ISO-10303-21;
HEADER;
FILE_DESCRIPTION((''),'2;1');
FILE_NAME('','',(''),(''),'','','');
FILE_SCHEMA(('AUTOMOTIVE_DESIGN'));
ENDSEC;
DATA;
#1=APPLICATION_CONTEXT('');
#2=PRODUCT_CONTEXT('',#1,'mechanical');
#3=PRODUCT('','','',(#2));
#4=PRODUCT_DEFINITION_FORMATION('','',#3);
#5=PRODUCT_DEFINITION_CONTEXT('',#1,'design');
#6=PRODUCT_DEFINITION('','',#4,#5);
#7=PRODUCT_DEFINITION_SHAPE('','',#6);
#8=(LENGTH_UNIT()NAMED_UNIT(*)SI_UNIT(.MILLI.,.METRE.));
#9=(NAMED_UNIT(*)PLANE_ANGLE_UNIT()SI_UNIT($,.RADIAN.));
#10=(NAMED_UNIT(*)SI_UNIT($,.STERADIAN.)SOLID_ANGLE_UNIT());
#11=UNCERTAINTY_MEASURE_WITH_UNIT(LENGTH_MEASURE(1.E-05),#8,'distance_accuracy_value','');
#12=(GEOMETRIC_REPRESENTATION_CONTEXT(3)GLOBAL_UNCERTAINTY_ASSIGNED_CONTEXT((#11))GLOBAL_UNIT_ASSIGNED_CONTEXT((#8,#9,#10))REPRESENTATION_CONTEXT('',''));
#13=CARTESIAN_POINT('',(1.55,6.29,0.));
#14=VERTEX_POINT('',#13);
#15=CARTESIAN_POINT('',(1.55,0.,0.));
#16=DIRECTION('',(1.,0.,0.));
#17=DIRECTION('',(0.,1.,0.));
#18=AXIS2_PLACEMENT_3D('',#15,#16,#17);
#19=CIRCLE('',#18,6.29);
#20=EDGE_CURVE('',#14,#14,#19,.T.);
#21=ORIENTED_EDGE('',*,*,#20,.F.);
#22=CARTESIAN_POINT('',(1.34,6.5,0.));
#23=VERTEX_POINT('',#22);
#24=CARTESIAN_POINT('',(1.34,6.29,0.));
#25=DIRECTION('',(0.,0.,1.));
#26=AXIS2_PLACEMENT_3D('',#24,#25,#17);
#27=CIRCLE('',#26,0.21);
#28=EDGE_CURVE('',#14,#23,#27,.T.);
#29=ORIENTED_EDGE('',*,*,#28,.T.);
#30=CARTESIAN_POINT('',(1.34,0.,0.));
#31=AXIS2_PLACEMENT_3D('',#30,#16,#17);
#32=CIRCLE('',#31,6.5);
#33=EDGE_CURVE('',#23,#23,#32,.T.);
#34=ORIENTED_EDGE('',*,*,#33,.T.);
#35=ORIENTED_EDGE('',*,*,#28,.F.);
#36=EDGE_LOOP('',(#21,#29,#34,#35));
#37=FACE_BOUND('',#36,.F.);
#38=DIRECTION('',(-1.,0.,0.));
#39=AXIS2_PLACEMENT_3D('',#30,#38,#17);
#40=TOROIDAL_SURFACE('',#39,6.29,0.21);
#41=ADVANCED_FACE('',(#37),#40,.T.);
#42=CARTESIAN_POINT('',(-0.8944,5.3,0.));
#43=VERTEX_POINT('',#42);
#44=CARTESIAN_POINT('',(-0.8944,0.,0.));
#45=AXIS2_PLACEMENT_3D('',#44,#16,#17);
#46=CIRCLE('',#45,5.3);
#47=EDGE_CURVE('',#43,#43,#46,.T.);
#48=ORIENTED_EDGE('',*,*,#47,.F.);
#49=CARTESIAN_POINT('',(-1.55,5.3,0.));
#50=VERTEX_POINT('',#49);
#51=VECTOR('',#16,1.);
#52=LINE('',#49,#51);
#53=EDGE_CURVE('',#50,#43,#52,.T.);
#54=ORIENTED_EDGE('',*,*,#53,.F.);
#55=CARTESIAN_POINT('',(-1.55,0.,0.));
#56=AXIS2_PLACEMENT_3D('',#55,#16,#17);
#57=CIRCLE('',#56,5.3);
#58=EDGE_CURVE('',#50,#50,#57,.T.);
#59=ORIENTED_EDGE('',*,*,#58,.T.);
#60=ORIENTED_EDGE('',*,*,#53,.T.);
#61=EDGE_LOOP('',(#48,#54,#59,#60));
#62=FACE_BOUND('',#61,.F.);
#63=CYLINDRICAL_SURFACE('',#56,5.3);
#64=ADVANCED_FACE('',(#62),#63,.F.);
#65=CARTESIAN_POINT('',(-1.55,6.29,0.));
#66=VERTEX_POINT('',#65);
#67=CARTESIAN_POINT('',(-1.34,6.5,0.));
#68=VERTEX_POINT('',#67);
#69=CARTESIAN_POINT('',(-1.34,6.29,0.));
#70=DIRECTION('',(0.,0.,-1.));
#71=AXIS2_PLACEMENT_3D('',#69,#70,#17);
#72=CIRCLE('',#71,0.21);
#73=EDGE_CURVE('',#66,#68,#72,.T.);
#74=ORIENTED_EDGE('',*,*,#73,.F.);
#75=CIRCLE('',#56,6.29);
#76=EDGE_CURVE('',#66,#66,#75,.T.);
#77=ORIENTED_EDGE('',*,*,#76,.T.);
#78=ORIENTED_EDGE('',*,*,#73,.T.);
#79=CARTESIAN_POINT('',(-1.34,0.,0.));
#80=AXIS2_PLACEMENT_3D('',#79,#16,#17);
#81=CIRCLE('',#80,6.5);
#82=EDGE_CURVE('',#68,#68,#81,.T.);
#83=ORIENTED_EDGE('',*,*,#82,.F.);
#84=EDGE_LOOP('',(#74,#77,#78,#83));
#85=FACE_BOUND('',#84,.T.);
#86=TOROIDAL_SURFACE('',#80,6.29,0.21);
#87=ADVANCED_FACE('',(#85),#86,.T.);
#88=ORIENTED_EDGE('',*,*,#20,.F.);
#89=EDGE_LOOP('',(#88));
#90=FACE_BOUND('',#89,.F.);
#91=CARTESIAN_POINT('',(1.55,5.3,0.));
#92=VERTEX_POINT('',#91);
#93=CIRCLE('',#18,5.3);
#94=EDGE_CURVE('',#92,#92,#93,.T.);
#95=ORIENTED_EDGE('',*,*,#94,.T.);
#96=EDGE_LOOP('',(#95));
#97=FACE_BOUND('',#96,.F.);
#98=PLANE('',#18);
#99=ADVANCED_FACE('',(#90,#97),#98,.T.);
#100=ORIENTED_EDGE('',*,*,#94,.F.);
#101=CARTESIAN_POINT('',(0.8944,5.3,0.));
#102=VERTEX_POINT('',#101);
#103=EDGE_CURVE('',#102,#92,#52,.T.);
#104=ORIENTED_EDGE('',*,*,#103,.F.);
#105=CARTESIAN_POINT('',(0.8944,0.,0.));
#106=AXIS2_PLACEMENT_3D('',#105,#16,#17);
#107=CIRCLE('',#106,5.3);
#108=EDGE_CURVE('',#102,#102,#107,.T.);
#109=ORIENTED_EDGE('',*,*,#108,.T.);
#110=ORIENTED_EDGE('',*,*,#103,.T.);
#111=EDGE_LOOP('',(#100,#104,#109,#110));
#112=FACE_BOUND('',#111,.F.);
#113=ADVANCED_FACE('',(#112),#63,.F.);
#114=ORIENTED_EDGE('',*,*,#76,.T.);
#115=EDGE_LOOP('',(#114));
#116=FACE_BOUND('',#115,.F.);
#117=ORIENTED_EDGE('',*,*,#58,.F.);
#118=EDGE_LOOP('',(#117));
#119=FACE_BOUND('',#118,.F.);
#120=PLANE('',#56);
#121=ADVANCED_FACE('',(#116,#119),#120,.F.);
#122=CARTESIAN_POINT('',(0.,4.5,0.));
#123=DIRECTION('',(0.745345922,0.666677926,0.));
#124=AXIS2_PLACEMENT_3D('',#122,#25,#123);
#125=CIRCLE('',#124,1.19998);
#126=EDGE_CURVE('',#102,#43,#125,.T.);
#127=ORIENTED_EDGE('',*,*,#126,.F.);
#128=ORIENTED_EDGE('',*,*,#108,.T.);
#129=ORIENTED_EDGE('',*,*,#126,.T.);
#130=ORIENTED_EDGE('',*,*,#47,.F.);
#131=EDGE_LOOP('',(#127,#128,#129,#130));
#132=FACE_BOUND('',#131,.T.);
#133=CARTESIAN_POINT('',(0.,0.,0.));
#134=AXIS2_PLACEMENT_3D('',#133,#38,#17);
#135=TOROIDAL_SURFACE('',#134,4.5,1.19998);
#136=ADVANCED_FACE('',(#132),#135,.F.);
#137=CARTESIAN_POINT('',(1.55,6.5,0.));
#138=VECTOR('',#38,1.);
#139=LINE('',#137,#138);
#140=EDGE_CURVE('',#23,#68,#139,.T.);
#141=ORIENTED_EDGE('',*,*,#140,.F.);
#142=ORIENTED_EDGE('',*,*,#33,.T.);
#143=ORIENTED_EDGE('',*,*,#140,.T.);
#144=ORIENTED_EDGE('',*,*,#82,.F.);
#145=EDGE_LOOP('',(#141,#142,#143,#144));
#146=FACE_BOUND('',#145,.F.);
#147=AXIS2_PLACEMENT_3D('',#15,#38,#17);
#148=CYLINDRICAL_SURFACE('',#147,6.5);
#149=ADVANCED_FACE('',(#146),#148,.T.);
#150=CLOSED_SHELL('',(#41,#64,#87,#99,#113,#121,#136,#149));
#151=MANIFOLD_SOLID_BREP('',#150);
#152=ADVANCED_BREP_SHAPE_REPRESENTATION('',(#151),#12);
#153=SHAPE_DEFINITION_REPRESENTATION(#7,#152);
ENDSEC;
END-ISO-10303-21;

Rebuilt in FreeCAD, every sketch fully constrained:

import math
import FreeCAD as App
import Part
import Sketcher


def edges_at(feature, points):
    """Names of the edges that pass closest to the given points."""
    edges = feature.Shape.Edges
    near = lambda p: min(range(len(edges)), key=lambda i: edges[i].distToShape(Part.Vertex(*p))[0])
    return sorted({f"Edge{near(p) + 1}" for p in points})

doc = App.newDocument("Part")
body = doc.addObject("PartDesign::Body", "Body")

# Sketch on XY plane
sketch1 = body.newObject("Sketcher::SketchObject", "Sketch")
sketch1.AttachmentSupport = (doc.getObject("XY_Plane"), [""])
sketch1.MapMode = "FlatFace"
sketch1.addGeometry([
    Part.LineSegment(App.Vector(1.6, 5.3, 0), App.Vector(1.6, 6.5, 0)),  # 0
    Part.LineSegment(App.Vector(1.6, 6.5, 0), App.Vector(-1.6, 6.5, 0)),  # 1
    Part.LineSegment(App.Vector(-1.6, 6.5, 0), App.Vector(-1.6, 5.3, 0)),  # 2
    Part.LineSegment(App.Vector(-1.6, 5.3, 0), App.Vector(-0.9, 5.3, 0)),  # 3
    Part.ArcOfCircle(Part.Circle(App.Vector(0, 4.5, 0), App.Vector(0, 0, 1), 1.2), math.radians(42), math.radians(138)),  # 4
    Part.LineSegment(App.Vector(0.9, 5.3, 0), App.Vector(1.6, 5.3, 0)),  # 5
], False)
sketch1.addConstraint([
    Sketcher.Constraint("Coincident", 0, 2, 1, 1),
    Sketcher.Constraint("Coincident", 1, 2, 2, 1),
    Sketcher.Constraint("Coincident", 2, 2, 3, 1),
    Sketcher.Constraint("Coincident", 3, 2, 4, 2),
    Sketcher.Constraint("Coincident", 4, 1, 5, 1),
    Sketcher.Constraint("Coincident", 5, 2, 0, 1),
    Sketcher.Constraint("Vertical", 0),
    Sketcher.Constraint("Horizontal", 1),
    Sketcher.Constraint("Vertical", 2),
    Sketcher.Constraint("Horizontal", 3),
    Sketcher.Constraint("Horizontal", 5),
    Sketcher.Constraint("Symmetric", 3, 2, 4, 1, -2),
    Sketcher.Constraint("Equal", 3, 5),
    Sketcher.Constraint("Radius", 4, 1.2),
    Sketcher.Constraint("DistanceX", 1, 2, 1, 1, 3.1),
    Sketcher.Constraint("DistanceY", 0, 1, 0, 2, 1.2),
    Sketcher.Constraint("DistanceY", -1, 1, 2, 2, 5.3),
    Sketcher.Constraint("DistanceY", 4, 3, 2, 2, 0.8),
])
revolution = body.newObject("PartDesign::Revolution", "Revolution")
revolution.Profile = sketch1
revolution.ReferenceAxis = (sketch1, ["H_Axis"])
revolution.Angle = 360
doc.recompute()

fillet = body.newObject("PartDesign::Fillet", "Fillet")
fillet.Base = (revolution, edges_at(revolution, [(1.55, -6.5, 0), (-1.55, -6.5, 0)]))
fillet.Radius = 0.21

doc.recompute()
